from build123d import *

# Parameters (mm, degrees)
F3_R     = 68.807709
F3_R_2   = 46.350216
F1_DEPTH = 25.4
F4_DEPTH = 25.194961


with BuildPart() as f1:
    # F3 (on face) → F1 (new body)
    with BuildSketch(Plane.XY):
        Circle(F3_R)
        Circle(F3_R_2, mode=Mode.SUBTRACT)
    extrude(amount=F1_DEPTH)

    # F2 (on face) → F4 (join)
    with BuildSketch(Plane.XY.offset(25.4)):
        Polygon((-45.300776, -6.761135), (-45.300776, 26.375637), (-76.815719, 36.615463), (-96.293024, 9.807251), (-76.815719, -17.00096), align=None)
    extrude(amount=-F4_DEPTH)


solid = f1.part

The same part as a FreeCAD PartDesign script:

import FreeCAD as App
import Part
import Sketcher
Q = App.Units.Quantity


def add_polygon(sketch, points):
    """Adds a closed chain of lines whose ends are joined by coincident constraints."""
    first, n = sketch.GeometryCount, len(points)
    for a, b in zip(points, points[1:] + points[:1]):
        sketch.addGeometry(Part.LineSegment(App.Vector(*a, 0), App.Vector(*b, 0)), False)
    for i in range(n):
        sketch.addConstraint(Sketcher.Constraint("Coincident", first + i, 2, first + (i + 1) % n, 1))

doc = App.newDocument("Part")
body = doc.addObject("PartDesign::Body", "Body")

sketch1 = doc.addObject("Sketcher::SketchObject", "Sketch")
body.addObject(sketch1)
sketch1.AttachmentSupport = (doc.XY_Plane, [""])
sketch1.MapMode = "FlatFace"
sketch1.addGeometry([
    Part.Circle(App.Vector(0, 0, 0), App.Vector(0, 0, 1), 68.807709),
    Part.Circle(App.Vector(0, 0, 0), App.Vector(0, 0, 1), 46.350216),
], False)
sketch1.addConstraint([
    Sketcher.Constraint("Coincident", 0, 3, -1, 1),
    Sketcher.Constraint("Coincident", 1, 3, -1, 1),
    Sketcher.Constraint("Diameter", 0, 137.615418),
    Sketcher.Constraint("Diameter", 1, 92.700432),
])
pad1 = doc.addObject("PartDesign::Pad", "Pad")
body.addObject(pad1)
pad1.Profile = sketch1
pad1.Length = Q("1 in")

sketch2 = doc.addObject("Sketcher::SketchObject", "Sketch001")
body.addObject(sketch2)
sketch2.AttachmentSupport = (doc.XY_Plane, [""])
sketch2.MapMode = "FlatFace"
sketch2.AttachmentOffset = App.Placement(App.Vector(0, 0, 1 * 25.4), App.Rotation())
add_polygon(sketch2, [(-45.300776, -6.761135), (-45.300776, 26.375637), (-76.815719, 36.615463), (-96.293024, 9.807251), (-76.815719, -17.00096)])
sketch2.addConstraint([
    Sketcher.Constraint("Vertical", 0),
    Sketcher.Constraint("Vertical", 1, 2, 3, 2),
    Sketcher.Constraint("Equal", 1, 2),
    Sketcher.Constraint("Equal", 2, 3),
    Sketcher.Constraint("Equal", 3, 4),
    Sketcher.Constraint("Angle", 1, Q("162 deg")),
    Sketcher.Constraint("Angle", 2, Q("-125.999998 deg")),
    Sketcher.Constraint("Distance", 2, 33.136772),
    Sketcher.Constraint("DistanceX", 1, 2, -1, 1, 76.815719),
    Sketcher.Constraint("DistanceY", -1, 1, 2, 2, 9.807251),
])
pad2 = doc.addObject("PartDesign::Pad", "Pad001")
body.addObject(pad2)
pad2.Profile = sketch2
pad2.Length = 25.194961
pad2.Reversed = True

doc.recompute()
